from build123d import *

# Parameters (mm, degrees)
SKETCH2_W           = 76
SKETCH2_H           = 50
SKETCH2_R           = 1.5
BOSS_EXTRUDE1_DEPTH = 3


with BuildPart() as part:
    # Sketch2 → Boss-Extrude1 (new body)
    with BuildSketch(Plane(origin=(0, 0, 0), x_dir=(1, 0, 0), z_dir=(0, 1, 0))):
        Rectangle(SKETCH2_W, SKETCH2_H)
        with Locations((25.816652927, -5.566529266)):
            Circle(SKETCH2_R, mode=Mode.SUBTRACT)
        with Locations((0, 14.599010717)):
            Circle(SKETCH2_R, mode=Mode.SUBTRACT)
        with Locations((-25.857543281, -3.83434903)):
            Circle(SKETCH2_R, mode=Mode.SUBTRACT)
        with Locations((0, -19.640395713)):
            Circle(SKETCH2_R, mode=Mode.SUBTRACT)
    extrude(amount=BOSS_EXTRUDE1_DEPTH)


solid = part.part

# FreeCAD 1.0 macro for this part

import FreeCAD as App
import Part
import Sketcher

V = App.Vector
Q = App.Units.Quantity

doc = App.newDocument("Part")
body = doc.addObject("PartDesign::Body", "Body")

# Sketch on XZ plane
sketch1 = doc.addObject("Sketcher::SketchObject", "Sketch")
body.addObject(sketch1)
sketch1.AttachmentSupport = (doc.XZ_Plane, [""])
sketch1.MapMode = "FlatFace"
sketch1.addGeometry([
    Part.LineSegment(V(-38, -25, 0), V(-38, 25, 0)),  # 0
    Part.LineSegment(V(-38, 25, 0), V(38, 25, 0)),  # 1
    Part.LineSegment(V(38, 25, 0), V(38, -25, 0)),  # 2
    Part.LineSegment(V(38, -25, 0), V(-38, -25, 0)),  # 3
    Part.Circle(V(-25.9, 3.8, 0), V(0, 0, 1), 1.5),  # 4
    Part.Circle(V(0, 19.6, 0), V(0, 0, 1), 1.5),  # 5
    Part.Circle(V(25.8, 5.6, 0), V(0, 0, 1), 1.5),  # 6
    Part.Circle(V(0, -14.6, 0), V(0, 0, 1), 1.5),  # 7
], False)
sketch1.addConstraint([
    Sketcher.Constraint("Coincident", 0, 2, 1, 1),
    Sketcher.Constraint("Coincident", 1, 2, 2, 1),
    Sketcher.Constraint("Coincident", 2, 2, 3, 1),
    Sketcher.Constraint("Coincident", 3, 2, 0, 1),
    Sketcher.Constraint("Vertical", 0),
    Sketcher.Constraint("Horizontal", 1),
    Sketcher.Constraint("Vertical", 2),
    Sketcher.Constraint("Horizontal", 3),
    Sketcher.Constraint("Equal", 4, 5),
    Sketcher.Constraint("Equal", 5, 6),
    Sketcher.Constraint("Equal", 6, 7),
    Sketcher.Constraint("Symmetric", 0, 2, 2, 2, -1, 1),
    Sketcher.Constraint("PointOnObject", 5, 3, -2),
    Sketcher.Constraint("PointOnObject", 7, 3, -2),
    Sketcher.Constraint("Diameter", 4, Q("3 mm")),
    Sketcher.Constraint("DistanceX", 1, 1, 1, 2, Q("76 mm")),
    Sketcher.Constraint("DistanceY", 0, 1, 0, 2, Q("50 mm")),
    Sketcher.Constraint("DistanceY", -1, 1, 4, 3, Q("3.834349 mm")),
    Sketcher.Constraint("DistanceY", -1, 1, 6, 3, Q("5.566529 mm")),
    Sketcher.Constraint("DistanceY", 7, 3, -1, 1, Q("14.599011 mm")),
    Sketcher.Constraint("DistanceX", 4, 3, -1, 1, Q("25.857543 mm")),
    Sketcher.Constraint("DistanceY", -1, 1, 5, 3, Q("19.640396 mm")),
    Sketcher.Constraint("DistanceX", -1, 1, 6, 3, Q("25.816653 mm")),
])
pad1 = doc.addObject("PartDesign::Pad", "Pad")
body.addObject(pad1)
pad1.Profile = sketch1
pad1.Length = 3
pad1.Reversed = True

doc.recompute()
